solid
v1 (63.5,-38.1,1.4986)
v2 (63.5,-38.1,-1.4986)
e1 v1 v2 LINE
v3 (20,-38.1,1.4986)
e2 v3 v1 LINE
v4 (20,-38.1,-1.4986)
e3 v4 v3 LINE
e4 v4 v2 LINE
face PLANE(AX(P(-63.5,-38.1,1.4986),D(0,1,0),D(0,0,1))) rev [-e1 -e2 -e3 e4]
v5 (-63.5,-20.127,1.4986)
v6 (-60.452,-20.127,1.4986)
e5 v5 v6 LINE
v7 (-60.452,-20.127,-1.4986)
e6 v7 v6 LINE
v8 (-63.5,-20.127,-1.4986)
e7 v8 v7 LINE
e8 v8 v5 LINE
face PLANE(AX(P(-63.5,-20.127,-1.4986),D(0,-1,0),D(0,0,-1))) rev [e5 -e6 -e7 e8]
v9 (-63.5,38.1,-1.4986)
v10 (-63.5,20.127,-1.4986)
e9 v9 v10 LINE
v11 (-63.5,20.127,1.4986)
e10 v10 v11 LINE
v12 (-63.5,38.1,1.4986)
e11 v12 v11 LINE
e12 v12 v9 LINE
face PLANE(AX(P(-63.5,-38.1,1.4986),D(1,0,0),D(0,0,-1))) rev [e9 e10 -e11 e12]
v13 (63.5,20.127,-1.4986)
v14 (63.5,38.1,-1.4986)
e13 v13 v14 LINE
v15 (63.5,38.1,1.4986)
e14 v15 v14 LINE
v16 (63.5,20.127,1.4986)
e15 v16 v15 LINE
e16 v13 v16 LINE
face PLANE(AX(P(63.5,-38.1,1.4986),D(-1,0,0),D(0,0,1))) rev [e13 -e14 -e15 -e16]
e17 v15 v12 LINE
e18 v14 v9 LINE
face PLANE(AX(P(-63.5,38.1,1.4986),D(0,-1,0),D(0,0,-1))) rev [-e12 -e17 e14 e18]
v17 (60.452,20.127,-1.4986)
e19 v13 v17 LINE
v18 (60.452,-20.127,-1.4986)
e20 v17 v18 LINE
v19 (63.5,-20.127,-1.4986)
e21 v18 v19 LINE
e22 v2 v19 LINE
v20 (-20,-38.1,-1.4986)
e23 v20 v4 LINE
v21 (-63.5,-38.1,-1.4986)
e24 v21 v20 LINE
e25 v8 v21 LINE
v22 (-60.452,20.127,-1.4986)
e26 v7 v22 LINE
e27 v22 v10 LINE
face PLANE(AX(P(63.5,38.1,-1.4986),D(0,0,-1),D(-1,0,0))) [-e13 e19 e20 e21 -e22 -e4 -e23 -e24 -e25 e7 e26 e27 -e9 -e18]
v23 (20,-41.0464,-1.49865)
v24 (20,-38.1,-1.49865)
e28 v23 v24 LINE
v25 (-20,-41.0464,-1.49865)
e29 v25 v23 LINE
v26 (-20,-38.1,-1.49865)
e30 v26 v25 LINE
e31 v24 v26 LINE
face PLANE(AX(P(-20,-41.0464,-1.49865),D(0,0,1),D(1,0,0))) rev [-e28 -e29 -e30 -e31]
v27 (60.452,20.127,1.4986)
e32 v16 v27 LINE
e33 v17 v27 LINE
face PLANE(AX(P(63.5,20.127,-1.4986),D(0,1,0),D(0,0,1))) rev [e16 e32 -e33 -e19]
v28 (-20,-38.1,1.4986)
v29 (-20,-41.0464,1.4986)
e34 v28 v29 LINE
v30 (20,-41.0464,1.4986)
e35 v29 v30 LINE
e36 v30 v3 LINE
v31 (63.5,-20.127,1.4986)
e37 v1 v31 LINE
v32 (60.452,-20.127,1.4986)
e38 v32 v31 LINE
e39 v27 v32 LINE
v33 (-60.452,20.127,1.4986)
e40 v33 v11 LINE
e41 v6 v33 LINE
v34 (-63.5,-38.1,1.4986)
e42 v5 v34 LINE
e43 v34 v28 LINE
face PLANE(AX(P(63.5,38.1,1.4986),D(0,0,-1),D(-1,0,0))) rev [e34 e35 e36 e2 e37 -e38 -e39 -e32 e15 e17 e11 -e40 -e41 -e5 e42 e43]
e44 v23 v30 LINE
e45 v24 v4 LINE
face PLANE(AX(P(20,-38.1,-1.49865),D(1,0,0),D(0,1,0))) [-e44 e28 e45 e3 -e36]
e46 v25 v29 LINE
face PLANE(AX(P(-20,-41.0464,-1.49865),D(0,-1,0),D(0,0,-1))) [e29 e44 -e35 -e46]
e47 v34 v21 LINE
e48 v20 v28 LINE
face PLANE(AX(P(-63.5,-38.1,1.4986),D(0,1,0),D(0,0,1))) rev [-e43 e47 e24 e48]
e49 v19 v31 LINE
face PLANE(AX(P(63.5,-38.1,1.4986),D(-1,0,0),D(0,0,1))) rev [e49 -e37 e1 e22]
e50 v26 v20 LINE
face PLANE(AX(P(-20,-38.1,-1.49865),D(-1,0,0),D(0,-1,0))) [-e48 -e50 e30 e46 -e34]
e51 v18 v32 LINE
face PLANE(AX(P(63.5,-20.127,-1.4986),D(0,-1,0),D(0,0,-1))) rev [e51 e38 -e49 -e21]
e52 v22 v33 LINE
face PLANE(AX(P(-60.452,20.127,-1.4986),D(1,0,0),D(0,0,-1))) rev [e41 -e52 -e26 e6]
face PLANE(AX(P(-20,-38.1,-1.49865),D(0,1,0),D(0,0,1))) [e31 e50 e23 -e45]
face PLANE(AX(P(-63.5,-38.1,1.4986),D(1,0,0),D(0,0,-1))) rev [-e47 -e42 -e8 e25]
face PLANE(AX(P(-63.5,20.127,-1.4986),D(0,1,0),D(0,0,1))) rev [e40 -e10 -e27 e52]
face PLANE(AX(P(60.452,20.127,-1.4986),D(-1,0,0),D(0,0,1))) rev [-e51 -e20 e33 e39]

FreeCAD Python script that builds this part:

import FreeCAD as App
import Part
import Sketcher

V = App.Vector
Q = App.Units.Quantity


def add_polygon(sketch, points):
    """Adds a closed chain of lines whose ends are joined by coincident constraints."""
    first, n = sketch.GeometryCount, len(points)
    for a, b in zip(points, points[1:] + points[:1]):
        sketch.addGeometry(Part.LineSegment(App.Vector(*a, 0), App.Vector(*b, 0)), False)
    for i in range(n):
        sketch.addConstraint(Sketcher.Constraint("Coincident", first + i, 2, first + (i + 1) % n, 1))

doc = App.newDocument("Part")
body = doc.addObject("PartDesign::Body", "Body")

sketch1 = body.newObject("Sketcher::SketchObject", "Sketch")
sketch1.AttachmentSupport = (doc.getObject("XY_Plane"), [""])
sketch1.MapMode = "FlatFace"
add_polygon(sketch1, [(-64, 38), (-64, -38), (64, -38), (64, 38)])
sketch1.addConstraint(Sketcher.Constraint("Vertical", 0))
sketch1.addConstraint(Sketcher.Constraint("Horizontal", 1))
sketch1.addConstraint(Sketcher.Constraint("Vertical", 2))
sketch1.addConstraint(Sketcher.Constraint("Horizontal", 3))
sketch1.addConstraint(Sketcher.Constraint("Symmetric", 0, 2, 2, 2, -1, 1))
sketch1.addConstraint(Sketcher.Constraint("DistanceX", 1, 1, 1, 2, Q("5 in")))
sketch1.addConstraint(Sketcher.Constraint("DistanceY", 0, 2, 0, 1, Q("3 in")))
pad1 = body.newObject("PartDesign::Pad", "Pad")
pad1.Profile = sketch1
pad1.Length = Q("0.118 in")
pad1.Midplane = True

sketch2 = body.newObject("Sketcher::SketchObject", "Sketch001")
sketch2.AttachmentSupport = (doc.getObject("XY_Plane"), [""])
sketch2.MapMode = "FlatFace"
sketch2.AttachmentOffset = App.Placement(V(0, 0, 0.059 * 25.4), App.Rotation())
add_polygon(sketch2, [(-63.5, 20.1), (-63.5, -20.1), (-60.5, -20.1), (-60.5, 20.1)])
add_polygon(sketch2, [(60.5, 20.1), (60.5, -20.1), (63.5, -20.1), (63.5, 20.1)])
add_polygon(sketch2, [(-20.1, -38.1), (-20.1, -41), (20.1, -41), (20.1, -38.1)])
sketch2.addConstraint(Sketcher.Constraint("Vertical", 0))
sketch2.addConstraint(Sketcher.Constraint("Horizontal", 1))
sketch2.addConstraint(Sketcher.Constraint("Vertical", 2))
sketch2.addConstraint(Sketcher.Constraint("Horizontal", 3))
sketch2.addConstraint(Sketcher.Constraint("Vertical", 4))
sketch2.addConstraint(Sketcher.Constraint("Horizontal", 5))
sketch2.addConstraint(Sketcher.Constraint("Vertical", 6))
sketch2.addConstraint(Sketcher.Constraint("Horizontal", 7))
sketch2.addConstraint(Sketcher.Constraint("Vertical", 8))
sketch2.addConstraint(Sketcher.Constraint("Horizontal", 9))
sketch2.addConstraint(Sketcher.Constraint("Vertical", 10))
sketch2.addConstraint(Sketcher.Constraint("Horizontal", 11))
sketch2.addConstraint(Sketcher.Constraint("Symmetric", 2, 2, 4, 2, -1, 1))
sketch2.addConstraint(Sketcher.Constraint("Symmetric", 0, 2, 6, 2, -1, 1))
sketch2.addConstraint(Sketcher.Constraint("Horizontal", 1, 2, 4, 2))
sketch2.addConstraint(Sketcher.Constraint("Equal", 11, 0))
sketch2.addConstraint(Sketcher.Constraint("DistanceX", 0, 2, 5, 2, Q("5 in")))
sketch2.addConstraint(Sketcher.Constraint("DistanceX", 1, 1, 1, 2, Q("0.12 in")))
sketch2.addConstraint(Sketcher.Constraint("DistanceY", 10, 2, -1, 1, Q("1.5 in")))
sketch2.addConstraint(Sketcher.Constraint("DistanceY", 8, 2, 8, 1, Q("0.116 in")))
sketch2.addConstraint(Sketcher.Constraint("DistanceX", 9, 1, 9, 2, Q("40.254 mm")))
sketch2.addConstraint(Sketcher.Constraint("DistanceX", 8, 2, -1, 1, Q("20.127 mm")))
pocket1 = body.newObject("PartDesign::Pocket", "Pocket")
pocket1.Profile = sketch2
pocket1.Type = "ThroughAll"

sketch3 = body.newObject("Sketcher::SketchObject", "Sketch002")
sketch3.AttachmentSupport = (doc.getObject("XY_Plane"), [""])
sketch3.MapMode = "FlatFace"
sketch3.AttachmentOffset = App.Placement(V(0, 0, 0.059 * 25.4), App.Rotation())
add_polygon(sketch3, [(-20, -38.1), (-20, -41), (20, -41), (20, -38.1)])
sketch3.addConstraint(Sketcher.Constraint("Vertical", 0))
sketch3.addConstraint(Sketcher.Constraint("Horizontal", 1))
sketch3.addConstraint(Sketcher.Constraint("Vertical", 2))
sketch3.addConstraint(Sketcher.Constraint("Horizontal", 3))
sketch3.addConstraint(Sketcher.Constraint("DistanceY", 2, 2, -1, 1, Q("1.5 in")))
sketch3.addConstraint(Sketcher.Constraint("DistanceY", 0, 2, 0, 1, Q("0.116 in")))
sketch3.addConstraint(Sketcher.Constraint("DistanceX", 1, 1, 1, 2, Q("40 mm")))
sketch3.addConstraint(Sketcher.Constraint("DistanceX", 0, 2, -1, 1, Q("20 mm")))
pad2 = body.newObject("PartDesign::Pad", "Pad001")
pad2.Profile = sketch3
pad2.Length = Q("0.118 in")
pad2.Reversed = True

doc.recompute()
